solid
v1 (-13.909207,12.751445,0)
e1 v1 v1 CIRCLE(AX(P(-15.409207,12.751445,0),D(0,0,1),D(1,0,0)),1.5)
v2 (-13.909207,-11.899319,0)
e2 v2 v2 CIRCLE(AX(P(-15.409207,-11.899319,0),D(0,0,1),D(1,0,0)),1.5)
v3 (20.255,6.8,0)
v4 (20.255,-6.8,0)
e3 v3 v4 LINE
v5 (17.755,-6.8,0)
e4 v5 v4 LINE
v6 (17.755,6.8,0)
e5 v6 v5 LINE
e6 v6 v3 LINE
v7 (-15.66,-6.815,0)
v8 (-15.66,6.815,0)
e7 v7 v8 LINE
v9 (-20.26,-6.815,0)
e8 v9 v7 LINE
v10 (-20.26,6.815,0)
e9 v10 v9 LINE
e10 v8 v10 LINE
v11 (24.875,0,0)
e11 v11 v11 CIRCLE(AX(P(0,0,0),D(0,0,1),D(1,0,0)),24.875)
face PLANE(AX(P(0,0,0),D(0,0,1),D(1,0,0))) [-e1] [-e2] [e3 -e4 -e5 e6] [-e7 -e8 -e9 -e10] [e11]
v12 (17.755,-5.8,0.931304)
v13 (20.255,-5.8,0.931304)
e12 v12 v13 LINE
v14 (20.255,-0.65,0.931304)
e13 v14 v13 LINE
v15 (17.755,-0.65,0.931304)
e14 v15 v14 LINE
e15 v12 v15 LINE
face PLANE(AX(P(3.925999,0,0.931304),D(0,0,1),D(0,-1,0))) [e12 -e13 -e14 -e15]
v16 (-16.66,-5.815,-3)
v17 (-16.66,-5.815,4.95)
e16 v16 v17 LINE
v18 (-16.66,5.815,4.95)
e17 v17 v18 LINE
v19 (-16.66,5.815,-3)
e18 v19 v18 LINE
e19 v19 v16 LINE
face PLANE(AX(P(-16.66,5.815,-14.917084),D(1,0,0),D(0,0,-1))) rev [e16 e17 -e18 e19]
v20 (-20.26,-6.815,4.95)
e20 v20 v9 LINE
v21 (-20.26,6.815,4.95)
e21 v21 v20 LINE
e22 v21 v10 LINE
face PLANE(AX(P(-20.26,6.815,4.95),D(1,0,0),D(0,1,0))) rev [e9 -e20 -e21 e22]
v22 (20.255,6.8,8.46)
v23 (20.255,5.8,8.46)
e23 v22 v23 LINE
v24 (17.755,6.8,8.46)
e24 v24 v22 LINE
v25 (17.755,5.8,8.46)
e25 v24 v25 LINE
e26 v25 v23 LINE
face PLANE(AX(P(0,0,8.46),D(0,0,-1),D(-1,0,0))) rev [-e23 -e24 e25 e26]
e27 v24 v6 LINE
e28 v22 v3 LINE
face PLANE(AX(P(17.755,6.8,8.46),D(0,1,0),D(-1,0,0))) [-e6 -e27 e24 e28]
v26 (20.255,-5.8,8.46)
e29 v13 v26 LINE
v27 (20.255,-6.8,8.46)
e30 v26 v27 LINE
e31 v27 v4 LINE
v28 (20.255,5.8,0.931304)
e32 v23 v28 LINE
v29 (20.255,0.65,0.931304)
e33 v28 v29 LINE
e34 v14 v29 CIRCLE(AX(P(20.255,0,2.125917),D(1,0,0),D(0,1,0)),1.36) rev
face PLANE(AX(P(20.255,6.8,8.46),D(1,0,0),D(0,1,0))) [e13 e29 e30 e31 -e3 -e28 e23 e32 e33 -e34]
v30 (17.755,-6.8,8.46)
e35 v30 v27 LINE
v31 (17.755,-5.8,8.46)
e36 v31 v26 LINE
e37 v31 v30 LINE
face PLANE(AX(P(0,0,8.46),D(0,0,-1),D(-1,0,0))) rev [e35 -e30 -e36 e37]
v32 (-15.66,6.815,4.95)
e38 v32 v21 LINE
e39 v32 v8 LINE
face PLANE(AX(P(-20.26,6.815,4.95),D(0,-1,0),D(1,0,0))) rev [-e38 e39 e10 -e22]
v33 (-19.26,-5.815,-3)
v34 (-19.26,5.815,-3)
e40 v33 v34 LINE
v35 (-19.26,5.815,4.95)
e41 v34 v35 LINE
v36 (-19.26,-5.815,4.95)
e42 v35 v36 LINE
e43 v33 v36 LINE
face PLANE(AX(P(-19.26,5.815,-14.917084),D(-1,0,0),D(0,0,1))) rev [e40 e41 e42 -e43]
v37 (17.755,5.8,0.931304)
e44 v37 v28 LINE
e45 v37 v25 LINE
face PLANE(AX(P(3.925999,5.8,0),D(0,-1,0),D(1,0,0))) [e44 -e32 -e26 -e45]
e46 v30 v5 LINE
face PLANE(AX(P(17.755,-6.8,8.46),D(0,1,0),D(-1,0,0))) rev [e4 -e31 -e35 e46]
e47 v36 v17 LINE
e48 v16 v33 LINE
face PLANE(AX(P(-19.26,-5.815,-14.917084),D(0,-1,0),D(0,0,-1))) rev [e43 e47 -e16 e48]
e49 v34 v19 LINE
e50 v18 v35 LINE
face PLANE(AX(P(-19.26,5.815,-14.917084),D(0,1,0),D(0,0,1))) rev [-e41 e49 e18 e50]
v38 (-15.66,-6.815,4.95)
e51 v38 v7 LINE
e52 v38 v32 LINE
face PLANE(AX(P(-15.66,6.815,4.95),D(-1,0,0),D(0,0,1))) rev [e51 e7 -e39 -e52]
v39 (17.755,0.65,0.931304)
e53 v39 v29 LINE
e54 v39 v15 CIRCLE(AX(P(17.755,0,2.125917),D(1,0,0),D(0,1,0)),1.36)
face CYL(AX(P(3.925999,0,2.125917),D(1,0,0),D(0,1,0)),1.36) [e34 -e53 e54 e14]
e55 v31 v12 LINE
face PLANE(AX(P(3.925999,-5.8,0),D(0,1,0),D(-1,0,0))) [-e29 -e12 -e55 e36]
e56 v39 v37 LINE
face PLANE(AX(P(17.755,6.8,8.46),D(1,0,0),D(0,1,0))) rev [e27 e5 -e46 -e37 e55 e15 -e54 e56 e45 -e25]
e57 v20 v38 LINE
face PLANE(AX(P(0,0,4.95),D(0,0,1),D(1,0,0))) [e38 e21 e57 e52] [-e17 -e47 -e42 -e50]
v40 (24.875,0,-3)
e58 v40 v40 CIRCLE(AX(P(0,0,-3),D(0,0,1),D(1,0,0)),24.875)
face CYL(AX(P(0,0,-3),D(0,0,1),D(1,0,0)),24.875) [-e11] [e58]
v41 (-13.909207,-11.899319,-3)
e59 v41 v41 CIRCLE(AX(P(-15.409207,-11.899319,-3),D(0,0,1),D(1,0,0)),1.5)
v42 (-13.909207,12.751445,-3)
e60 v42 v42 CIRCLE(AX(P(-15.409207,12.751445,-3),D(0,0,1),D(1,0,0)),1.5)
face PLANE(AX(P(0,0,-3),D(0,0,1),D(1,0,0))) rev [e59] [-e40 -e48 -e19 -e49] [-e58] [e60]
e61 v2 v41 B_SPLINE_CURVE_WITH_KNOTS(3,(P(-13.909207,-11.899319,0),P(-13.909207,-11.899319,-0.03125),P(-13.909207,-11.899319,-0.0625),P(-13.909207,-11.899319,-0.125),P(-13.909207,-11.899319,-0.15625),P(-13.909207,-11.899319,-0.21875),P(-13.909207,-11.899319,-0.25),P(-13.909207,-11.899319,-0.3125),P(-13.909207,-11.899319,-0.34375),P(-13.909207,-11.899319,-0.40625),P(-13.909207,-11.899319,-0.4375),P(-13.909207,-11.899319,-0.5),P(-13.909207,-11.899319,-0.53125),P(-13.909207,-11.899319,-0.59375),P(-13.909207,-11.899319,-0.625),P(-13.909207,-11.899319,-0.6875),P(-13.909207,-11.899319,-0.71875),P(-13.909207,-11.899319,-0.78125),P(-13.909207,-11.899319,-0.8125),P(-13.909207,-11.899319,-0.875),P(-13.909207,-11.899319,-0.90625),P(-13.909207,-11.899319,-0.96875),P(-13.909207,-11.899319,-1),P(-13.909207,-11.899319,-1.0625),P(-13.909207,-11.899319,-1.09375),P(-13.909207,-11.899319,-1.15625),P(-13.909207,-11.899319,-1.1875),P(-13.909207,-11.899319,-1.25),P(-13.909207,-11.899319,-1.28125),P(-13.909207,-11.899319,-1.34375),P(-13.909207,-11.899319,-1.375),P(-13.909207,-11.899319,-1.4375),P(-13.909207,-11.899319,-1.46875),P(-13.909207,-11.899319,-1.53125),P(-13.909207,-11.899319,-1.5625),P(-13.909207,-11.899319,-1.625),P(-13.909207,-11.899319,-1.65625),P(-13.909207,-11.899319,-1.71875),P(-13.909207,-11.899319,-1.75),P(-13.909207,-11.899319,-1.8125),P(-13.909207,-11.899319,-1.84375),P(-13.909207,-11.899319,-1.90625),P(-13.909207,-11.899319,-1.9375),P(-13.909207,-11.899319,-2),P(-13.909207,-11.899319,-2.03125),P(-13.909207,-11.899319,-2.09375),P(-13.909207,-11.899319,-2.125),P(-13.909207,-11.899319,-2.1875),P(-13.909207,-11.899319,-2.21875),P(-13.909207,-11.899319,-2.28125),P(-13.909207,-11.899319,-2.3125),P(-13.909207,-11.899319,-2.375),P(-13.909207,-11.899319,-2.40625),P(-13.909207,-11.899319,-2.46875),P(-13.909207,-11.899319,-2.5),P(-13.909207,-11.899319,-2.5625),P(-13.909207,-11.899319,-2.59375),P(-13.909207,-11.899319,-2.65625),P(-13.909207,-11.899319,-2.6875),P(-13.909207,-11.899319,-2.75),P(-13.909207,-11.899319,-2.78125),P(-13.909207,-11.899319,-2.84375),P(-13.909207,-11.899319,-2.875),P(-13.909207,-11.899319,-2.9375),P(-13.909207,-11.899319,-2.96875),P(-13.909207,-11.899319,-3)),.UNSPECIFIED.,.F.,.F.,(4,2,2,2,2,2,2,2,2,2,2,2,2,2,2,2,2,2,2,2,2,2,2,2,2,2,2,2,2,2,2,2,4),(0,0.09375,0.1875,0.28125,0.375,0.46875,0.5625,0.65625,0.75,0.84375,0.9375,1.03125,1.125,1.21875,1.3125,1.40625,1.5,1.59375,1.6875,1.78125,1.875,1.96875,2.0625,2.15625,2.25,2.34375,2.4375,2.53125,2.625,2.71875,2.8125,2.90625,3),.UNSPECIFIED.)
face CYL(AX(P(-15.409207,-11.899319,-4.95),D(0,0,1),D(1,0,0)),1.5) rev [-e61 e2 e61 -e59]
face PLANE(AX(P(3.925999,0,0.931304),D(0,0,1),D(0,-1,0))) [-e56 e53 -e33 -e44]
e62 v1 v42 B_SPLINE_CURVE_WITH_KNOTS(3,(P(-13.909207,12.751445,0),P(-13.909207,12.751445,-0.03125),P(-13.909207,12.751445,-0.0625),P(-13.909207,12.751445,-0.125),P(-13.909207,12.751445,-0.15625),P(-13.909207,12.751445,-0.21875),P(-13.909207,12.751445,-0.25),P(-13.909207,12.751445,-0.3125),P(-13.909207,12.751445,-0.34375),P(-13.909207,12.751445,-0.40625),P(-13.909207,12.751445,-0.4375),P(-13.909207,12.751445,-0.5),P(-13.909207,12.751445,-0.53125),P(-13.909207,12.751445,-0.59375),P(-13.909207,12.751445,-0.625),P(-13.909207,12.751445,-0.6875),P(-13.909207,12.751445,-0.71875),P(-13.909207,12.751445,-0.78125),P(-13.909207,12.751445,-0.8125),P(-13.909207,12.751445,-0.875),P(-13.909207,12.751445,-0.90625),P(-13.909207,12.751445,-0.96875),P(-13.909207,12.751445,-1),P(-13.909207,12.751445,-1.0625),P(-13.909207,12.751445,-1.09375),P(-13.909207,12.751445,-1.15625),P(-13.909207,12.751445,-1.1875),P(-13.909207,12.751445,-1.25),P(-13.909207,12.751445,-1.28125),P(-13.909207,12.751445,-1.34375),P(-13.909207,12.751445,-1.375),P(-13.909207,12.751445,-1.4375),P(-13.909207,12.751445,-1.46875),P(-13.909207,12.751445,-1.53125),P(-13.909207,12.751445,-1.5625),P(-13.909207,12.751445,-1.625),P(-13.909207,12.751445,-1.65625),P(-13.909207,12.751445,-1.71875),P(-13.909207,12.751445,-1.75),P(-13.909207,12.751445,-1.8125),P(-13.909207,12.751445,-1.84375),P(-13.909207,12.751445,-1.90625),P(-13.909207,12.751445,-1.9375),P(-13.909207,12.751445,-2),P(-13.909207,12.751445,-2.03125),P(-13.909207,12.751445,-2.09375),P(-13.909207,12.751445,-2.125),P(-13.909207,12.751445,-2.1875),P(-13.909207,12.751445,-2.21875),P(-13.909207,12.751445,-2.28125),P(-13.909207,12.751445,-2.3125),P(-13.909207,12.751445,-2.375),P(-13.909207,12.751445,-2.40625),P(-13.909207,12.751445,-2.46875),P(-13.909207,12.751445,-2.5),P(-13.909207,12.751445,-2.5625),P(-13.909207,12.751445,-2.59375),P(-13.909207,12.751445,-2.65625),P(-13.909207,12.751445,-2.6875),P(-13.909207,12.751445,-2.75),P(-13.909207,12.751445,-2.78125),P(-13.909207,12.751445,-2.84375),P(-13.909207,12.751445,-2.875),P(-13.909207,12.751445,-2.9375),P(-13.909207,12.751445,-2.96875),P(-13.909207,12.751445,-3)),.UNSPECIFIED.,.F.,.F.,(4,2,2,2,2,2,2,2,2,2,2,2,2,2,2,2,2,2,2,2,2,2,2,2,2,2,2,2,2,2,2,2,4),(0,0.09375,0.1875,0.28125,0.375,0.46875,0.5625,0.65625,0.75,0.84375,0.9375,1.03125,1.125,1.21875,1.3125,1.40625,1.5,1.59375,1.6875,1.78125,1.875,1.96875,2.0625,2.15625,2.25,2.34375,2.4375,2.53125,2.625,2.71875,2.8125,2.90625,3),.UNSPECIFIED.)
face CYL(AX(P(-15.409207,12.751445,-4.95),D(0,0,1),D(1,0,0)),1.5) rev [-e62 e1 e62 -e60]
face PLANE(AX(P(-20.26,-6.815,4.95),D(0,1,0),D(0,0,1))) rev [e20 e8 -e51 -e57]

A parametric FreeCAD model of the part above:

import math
import FreeCAD as App
import Part
import Sketcher

doc = App.newDocument("Part")
params = doc.addObject("Spreadsheet::Sheet", "Params")
for row, (alias, value) in enumerate([
    ("sketch1_diameter", "49.75 mm"),
    ("pad1_length", "3 mm"),
    ("sketch2_width", "2.5 mm"),
    ("sketch2_height", "13.6 mm"),
    ("pad2_length", "8.46 mm"),
    ("sketch3_radius", "1.36 mm"),
    ("sketch3_width", "11.6 mm"),
    ("sketch3_width2", "5.15 mm"),
    ("pocket1_length", "2.5 mm"),
    ("sketch4_width", "4.6 mm"),
    ("sketch4_height", "13.63 mm"),
    ("pad3_length", "4.95 mm"),
    ("sketch5_width", "2.6 mm"),
    ("sketch5_height", "11.63 mm"),
    ("pocket2_length", "7.95 mm"),
    ("sketch6_diameter", "3 mm"),
    ("pocket3_length", "4.95 mm"),
], start=1):
    params.set(f"A{row}", alias)
    params.set(f"B{row}", "=" + value)
    params.setAlias(f"B{row}", alias)

body = doc.addObject("PartDesign::Body", "Body")

sketch1 = body.newObject("Sketcher::SketchObject", "Sketch")
sketch1.AttachmentSupport = (doc.getObject("XY_Plane"), [""])
sketch1.MapMode = "FlatFace"
sketch1.addGeometry(Part.Circle(App.Vector(0, 0, 0), App.Vector(0, 0, 1), 25), False)
sketch1.addConstraint([
    Sketcher.Constraint("Coincident", 0, 3, -1, 1),
    Sketcher.Constraint("Diameter", 0, 49.75),
])
sketch1.setExpression("Constraints[1]", "Params.sketch1_diameter")
pad1 = body.newObject("PartDesign::Pad", "Pad")
pad1.Profile = sketch1
pad1.setExpression("Length", "Params.pad1_length")
pad1.Reversed = True

sketch2 = body.newObject("Sketcher::SketchObject", "Sketch001")
sketch2.AttachmentSupport = (doc.getObject("XY_Plane"), [""])
sketch2.MapMode = "FlatFace"
sketch2.addGeometry([
    Part.LineSegment(App.Vector(17.8, 6.8, 0), App.Vector(17.8, -6.8, 0)),
    Part.LineSegment(App.Vector(17.8, -6.8, 0), App.Vector(20.3, -6.8, 0)),
    Part.LineSegment(App.Vector(20.3, -6.8, 0), App.Vector(20.3, 6.8, 0)),
    Part.LineSegment(App.Vector(20.3, 6.8, 0), App.Vector(17.8, 6.8, 0)),
], False)
sketch2.addConstraint([
    Sketcher.Constraint("Coincident", 0, 2, 1, 1),
    Sketcher.Constraint("Coincident", 1, 2, 2, 1),
    Sketcher.Constraint("Coincident", 2, 2, 3, 1),
    Sketcher.Constraint("Coincident", 3, 2, 0, 1),
    Sketcher.Constraint("Vertical", 0),
    Sketcher.Constraint("Horizontal", 1),
    Sketcher.Constraint("Vertical", 2),
    Sketcher.Constraint("Horizontal", 3),
    Sketcher.Constraint("DistanceX", 1, 1, 1, 2, 2.5),
    Sketcher.Constraint("DistanceY", 0, 2, 0, 1, 13.6),
    Sketcher.Constraint("DistanceY", 0, 2, -1, 1, 6.8),
    Sketcher.Constraint("DistanceX", -1, 1, 0, 2, 17.755),
])
sketch2.setExpression("Constraints[8]", "Params.sketch2_width")
sketch2.setExpression("Constraints[9]", "Params.sketch2_height")
pad2 = body.newObject("PartDesign::Pad", "Pad001")
pad2.Profile = sketch2
pad2.setExpression("Length", "Params.pad2_length")

sketch3 = body.newObject("Sketcher::SketchObject", "Sketch002")
sketch3.AttachmentSupport = (doc.getObject("YZ_Plane"), [""])
sketch3.MapMode = "FlatFace"
sketch3.AttachmentOffset = App.Placement(App.Vector(0, 0, 20.255), App.Rotation())
sketch3.addGeometry([
    Part.ArcOfCircle(Part.Circle(App.Vector(0, 2.1, 0), App.Vector(0, 0, 1), 1.4), math.radians(-61), math.radians(241)),
    Part.LineSegment(App.Vector(0.7, 0.9, 0), App.Vector(5.8, 0.9, 0)),
    Part.LineSegment(App.Vector(5.8, 0.9, 0), App.Vector(5.8, 8.5, 0)),
    Part.LineSegment(App.Vector(5.8, 8.5, 0), App.Vector(-5.8, 8.5, 0)),
    Part.LineSegment(App.Vector(-5.8, 8.5, 0), App.Vector(-5.8, 0.9, 0)),
    Part.LineSegment(App.Vector(-5.8, 0.9, 0), App.Vector(-0.7, 0.9, 0)),
], False)
sketch3.addConstraint([
    Sketcher.Constraint("Coincident", 0, 1, 1, 1),
    Sketcher.Constraint("Coincident", 1, 2, 2, 1),
    Sketcher.Constraint("Coincident", 2, 2, 3, 1),
    Sketcher.Constraint("Coincident", 3, 2, 4, 1),
    Sketcher.Constraint("Coincident", 4, 2, 5, 1),
    Sketcher.Constraint("Coincident", 5, 2, 0, 2),
    Sketcher.Constraint("Horizontal", 1),
    Sketcher.Constraint("Vertical", 2),
    Sketcher.Constraint("Horizontal", 3),
    Sketcher.Constraint("Vertical", 4),
    Sketcher.Constraint("Horizontal", 5),
    Sketcher.Constraint("Symmetric", 1, 2, 4, 2, -2),
    Sketcher.Constraint("PointOnObject", 0, 3, -2),
    Sketcher.Constraint("Radius", 0, 1.36),
    Sketcher.Constraint("DistanceX", 3, 2, 3, 1, 11.6),
    Sketcher.Constraint("DistanceX", 1, 1, 1, 2, 5.15),
    Sketcher.Constraint("DistanceY", -1, 1, 2, 2, 8.46),
    Sketcher.Constraint("DistanceY", 2, 1, 2, 2, 7.528696),
])
sketch3.setExpression("Constraints[13]", "Params.sketch3_radius")
sketch3.setExpression("Constraints[14]", "Params.sketch3_width")
sketch3.setExpression("Constraints[15]", "Params.sketch3_width2")
pocket1 = body.newObject("PartDesign::Pocket", "Pocket")
pocket1.Profile = sketch3
pocket1.setExpression("Length", "Params.pocket1_length")

sketch4 = body.newObject("Sketcher::SketchObject", "Sketch003")
sketch4.AttachmentSupport = (doc.getObject("XY_Plane"), [""])
sketch4.MapMode = "FlatFace"
sketch4.addGeometry([
    Part.LineSegment(App.Vector(-20.3, 6.8, 0), App.Vector(-20.3, -6.8, 0)),
    Part.LineSegment(App.Vector(-20.3, -6.8, 0), App.Vector(-15.7, -6.8, 0)),
    Part.LineSegment(App.Vector(-15.7, -6.8, 0), App.Vector(-15.7, 6.8, 0)),
    Part.LineSegment(App.Vector(-15.7, 6.8, 0), App.Vector(-20.3, 6.8, 0)),
], False)
sketch4.addConstraint([
    Sketcher.Constraint("Coincident", 0, 2, 1, 1),
    Sketcher.Constraint("Coincident", 1, 2, 2, 1),
    Sketcher.Constraint("Coincident", 2, 2, 3, 1),
    Sketcher.Constraint("Coincident", 3, 2, 0, 1),
    Sketcher.Constraint("Vertical", 0),
    Sketcher.Constraint("Horizontal", 1),
    Sketcher.Constraint("Vertical", 2),
    Sketcher.Constraint("Horizontal", 3),
    Sketcher.Constraint("DistanceX", 1, 1, 1, 2, 4.6),
    Sketcher.Constraint("DistanceY", 0, 2, 0, 1, 13.63),
    Sketcher.Constraint("DistanceX", 0, 2, -1, 1, 20.26),
    Sketcher.Constraint("DistanceY", 0, 2, -1, 1, 6.815),
])
sketch4.setExpression("Constraints[8]", "Params.sketch4_width")
sketch4.setExpression("Constraints[9]", "Params.sketch4_height")
pad3 = body.newObject("PartDesign::Pad", "Pad002")
pad3.Profile = sketch4
pad3.setExpression("Length", "Params.pad3_length")

sketch5 = body.newObject("Sketcher::SketchObject", "Sketch004")
sketch5.AttachmentSupport = (doc.getObject("XY_Plane"), [""])
sketch5.MapMode = "FlatFace"
sketch5.AttachmentOffset = App.Placement(App.Vector(0, 0, 4.95), App.Rotation())
sketch5.addGeometry([
    Part.LineSegment(App.Vector(-19.3, 5.8, 0), App.Vector(-19.3, -5.8, 0)),
    Part.LineSegment(App.Vector(-19.3, -5.8, 0), App.Vector(-16.7, -5.8, 0)),
    Part.LineSegment(App.Vector(-16.7, -5.8, 0), App.Vector(-16.7, 5.8, 0)),
    Part.LineSegment(App.Vector(-16.7, 5.8, 0), App.Vector(-19.3, 5.8, 0)),
], False)
sketch5.addConstraint([
    Sketcher.Constraint("Coincident", 0, 2, 1, 1),
    Sketcher.Constraint("Coincident", 1, 2, 2, 1),
    Sketcher.Constraint("Coincident", 2, 2, 3, 1),
    Sketcher.Constraint("Coincident", 3, 2, 0, 1),
    Sketcher.Constraint("Vertical", 0),
    Sketcher.Constraint("Horizontal", 1),
    Sketcher.Constraint("Vertical", 2),
    Sketcher.Constraint("Horizontal", 3),
    Sketcher.Constraint("DistanceX", 1, 1, 1, 2, 2.6),
    Sketcher.Constraint("DistanceY", 0, 2, 0, 1, 11.63),
    Sketcher.Constraint("DistanceX", 0, 2, -1, 1, 19.26),
    Sketcher.Constraint("DistanceY", 0, 2, -1, 1, 5.815),
])
sketch5.setExpression("Constraints[8]", "Params.sketch5_width")
sketch5.setExpression("Constraints[9]", "Params.sketch5_height")
pocket2 = body.newObject("PartDesign::Pocket", "Pocket001")
pocket2.Profile = sketch5
pocket2.setExpression("Length", "Params.pocket2_length")

sketch6 = body.newObject("Sketcher::SketchObject", "Sketch005")
sketch6.AttachmentSupport = (doc.getObject("XY_Plane"), [""])
sketch6.MapMode = "FlatFace"
sketch6.addGeometry([
    Part.Circle(App.Vector(-15.4, 12.8, 0), App.Vector(0, 0, 1), 1.5),
    Part.Circle(App.Vector(-15.4, -11.9, 0), App.Vector(0, 0, 1), 1.5),
], False)
sketch6.addConstraint([
    Sketcher.Constraint("Equal", 0, 1),
    Sketcher.Constraint("Vertical", 0, 3, 1, 3),
    Sketcher.Constraint("Diameter", 0, 3.0),
    Sketcher.Constraint("DistanceY", 1, 3, -1, 1, 11.899319),
    Sketcher.Constraint("DistanceX", 0, 3, -1, 1, 15.409207),
    Sketcher.Constraint("DistanceY", -1, 1, 0, 3, 12.751445),
])
sketch6.setExpression("Constraints[2]", "Params.sketch6_diameter")
pocket3 = body.newObject("PartDesign::Pocket", "Pocket002")
pocket3.Profile = sketch6
pocket3.setExpression("Length", "Params.pocket3_length")

doc.recompute()
